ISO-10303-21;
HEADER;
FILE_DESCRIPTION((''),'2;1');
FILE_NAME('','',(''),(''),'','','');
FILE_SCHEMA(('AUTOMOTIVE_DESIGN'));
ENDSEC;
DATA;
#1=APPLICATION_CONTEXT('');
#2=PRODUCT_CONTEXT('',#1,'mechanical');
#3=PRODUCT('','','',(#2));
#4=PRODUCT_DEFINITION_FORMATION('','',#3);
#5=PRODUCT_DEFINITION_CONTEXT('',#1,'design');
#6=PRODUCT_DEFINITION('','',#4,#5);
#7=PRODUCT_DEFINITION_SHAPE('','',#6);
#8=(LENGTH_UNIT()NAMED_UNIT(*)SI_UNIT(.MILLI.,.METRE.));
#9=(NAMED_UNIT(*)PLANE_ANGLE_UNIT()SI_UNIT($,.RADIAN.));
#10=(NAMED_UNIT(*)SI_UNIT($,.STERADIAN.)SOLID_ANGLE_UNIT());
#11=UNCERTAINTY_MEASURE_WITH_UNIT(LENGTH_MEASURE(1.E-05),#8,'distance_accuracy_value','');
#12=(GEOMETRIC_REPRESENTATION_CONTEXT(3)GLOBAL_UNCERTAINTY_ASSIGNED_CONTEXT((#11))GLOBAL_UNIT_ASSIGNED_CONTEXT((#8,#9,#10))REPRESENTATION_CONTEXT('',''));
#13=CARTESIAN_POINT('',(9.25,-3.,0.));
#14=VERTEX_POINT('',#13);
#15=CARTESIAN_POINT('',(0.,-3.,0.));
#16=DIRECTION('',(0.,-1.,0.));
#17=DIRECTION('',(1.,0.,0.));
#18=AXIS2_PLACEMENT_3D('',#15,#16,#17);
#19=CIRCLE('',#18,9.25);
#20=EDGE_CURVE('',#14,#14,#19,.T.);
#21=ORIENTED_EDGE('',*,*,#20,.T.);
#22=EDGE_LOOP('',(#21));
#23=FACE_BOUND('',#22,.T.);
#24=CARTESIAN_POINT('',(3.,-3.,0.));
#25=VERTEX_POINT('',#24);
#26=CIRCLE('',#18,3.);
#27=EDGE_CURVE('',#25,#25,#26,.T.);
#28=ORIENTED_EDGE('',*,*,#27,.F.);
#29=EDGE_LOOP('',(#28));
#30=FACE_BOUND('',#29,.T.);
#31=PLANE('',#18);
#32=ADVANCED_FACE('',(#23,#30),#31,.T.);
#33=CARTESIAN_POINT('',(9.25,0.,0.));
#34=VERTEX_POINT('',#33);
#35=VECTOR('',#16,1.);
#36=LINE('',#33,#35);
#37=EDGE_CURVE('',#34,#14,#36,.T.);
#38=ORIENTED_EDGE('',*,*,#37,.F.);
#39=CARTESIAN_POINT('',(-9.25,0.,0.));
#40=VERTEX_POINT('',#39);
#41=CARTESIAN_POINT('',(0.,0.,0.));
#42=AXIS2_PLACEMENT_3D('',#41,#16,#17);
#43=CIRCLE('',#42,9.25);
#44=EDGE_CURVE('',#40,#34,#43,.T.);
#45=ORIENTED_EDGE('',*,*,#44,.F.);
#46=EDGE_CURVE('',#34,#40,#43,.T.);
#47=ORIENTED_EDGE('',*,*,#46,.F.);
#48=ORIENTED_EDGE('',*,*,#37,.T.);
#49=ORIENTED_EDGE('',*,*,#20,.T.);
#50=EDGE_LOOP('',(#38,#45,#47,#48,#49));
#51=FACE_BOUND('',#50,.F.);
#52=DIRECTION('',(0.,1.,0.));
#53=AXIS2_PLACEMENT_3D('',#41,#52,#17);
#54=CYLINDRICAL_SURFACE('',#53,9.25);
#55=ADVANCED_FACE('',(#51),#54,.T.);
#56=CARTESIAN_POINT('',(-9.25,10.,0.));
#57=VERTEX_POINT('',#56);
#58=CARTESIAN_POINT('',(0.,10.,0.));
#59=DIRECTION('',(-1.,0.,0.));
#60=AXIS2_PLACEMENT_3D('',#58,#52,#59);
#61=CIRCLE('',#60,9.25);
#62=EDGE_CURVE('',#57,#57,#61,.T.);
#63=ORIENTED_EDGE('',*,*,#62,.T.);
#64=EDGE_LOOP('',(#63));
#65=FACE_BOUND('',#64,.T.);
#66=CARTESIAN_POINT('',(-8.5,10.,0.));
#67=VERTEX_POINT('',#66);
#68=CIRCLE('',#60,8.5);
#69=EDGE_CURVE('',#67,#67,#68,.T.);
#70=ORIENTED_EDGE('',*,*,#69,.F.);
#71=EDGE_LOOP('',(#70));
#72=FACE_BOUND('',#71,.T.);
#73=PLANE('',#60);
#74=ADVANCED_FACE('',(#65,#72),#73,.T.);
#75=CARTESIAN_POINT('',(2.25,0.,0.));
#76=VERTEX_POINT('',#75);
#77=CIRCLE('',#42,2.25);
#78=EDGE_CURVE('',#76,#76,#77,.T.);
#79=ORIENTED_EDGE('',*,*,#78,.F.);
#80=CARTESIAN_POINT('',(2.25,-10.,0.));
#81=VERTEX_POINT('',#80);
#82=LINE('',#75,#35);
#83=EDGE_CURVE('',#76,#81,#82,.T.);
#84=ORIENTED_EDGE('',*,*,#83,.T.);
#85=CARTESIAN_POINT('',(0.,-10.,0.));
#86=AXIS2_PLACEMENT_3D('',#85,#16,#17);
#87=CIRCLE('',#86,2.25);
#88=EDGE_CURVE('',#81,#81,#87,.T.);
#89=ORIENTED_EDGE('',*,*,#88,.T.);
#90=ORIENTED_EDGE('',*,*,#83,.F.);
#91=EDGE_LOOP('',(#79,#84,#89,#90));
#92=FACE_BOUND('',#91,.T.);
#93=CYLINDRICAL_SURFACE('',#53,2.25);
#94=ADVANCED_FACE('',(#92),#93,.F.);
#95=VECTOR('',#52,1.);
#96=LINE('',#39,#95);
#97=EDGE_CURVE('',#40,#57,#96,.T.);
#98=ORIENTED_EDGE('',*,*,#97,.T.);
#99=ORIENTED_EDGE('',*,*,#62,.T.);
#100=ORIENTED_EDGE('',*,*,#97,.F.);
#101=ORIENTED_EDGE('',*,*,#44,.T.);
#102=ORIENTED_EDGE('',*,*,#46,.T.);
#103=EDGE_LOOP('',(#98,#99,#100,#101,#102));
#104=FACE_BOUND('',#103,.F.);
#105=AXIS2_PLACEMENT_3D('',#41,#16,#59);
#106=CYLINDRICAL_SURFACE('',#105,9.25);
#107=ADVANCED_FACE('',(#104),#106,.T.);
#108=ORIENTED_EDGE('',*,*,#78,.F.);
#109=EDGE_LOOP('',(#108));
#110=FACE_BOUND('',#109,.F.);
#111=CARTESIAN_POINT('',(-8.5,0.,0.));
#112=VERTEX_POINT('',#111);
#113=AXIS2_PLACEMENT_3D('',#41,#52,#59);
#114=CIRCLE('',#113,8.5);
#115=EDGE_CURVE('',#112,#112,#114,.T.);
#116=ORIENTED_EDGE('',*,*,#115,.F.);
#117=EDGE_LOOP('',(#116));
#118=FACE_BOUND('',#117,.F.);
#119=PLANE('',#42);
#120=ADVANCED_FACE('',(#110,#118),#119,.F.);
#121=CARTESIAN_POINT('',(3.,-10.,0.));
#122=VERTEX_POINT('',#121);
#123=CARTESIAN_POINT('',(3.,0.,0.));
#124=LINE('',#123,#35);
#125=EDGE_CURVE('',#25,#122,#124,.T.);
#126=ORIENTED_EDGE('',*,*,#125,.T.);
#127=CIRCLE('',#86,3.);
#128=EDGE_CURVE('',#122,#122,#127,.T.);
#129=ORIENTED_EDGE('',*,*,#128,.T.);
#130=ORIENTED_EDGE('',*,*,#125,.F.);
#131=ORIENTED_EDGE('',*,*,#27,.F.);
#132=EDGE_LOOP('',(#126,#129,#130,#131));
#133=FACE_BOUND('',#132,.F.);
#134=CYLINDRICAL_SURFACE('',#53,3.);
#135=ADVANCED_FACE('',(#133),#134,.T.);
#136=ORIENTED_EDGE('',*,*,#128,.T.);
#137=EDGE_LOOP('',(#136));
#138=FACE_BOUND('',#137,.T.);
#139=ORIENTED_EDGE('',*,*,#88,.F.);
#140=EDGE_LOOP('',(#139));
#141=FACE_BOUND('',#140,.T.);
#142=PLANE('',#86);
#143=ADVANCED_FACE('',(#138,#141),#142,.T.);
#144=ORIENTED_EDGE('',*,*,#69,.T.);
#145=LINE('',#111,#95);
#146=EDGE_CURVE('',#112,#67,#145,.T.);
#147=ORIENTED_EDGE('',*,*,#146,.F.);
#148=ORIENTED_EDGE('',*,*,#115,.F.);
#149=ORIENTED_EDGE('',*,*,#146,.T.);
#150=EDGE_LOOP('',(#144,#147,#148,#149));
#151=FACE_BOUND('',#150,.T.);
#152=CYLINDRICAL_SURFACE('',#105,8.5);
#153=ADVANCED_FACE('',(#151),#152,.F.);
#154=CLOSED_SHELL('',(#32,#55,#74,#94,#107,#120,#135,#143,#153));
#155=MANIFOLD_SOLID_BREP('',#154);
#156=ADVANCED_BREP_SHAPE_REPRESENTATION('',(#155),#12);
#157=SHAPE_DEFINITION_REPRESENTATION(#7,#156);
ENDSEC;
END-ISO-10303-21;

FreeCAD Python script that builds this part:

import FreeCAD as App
import Part
import Sketcher
from FreeCAD import Vector

doc = App.newDocument("Part")
params = doc.addObject("Spreadsheet::Sheet", "Params")
for row, (alias, value) in enumerate([
    ("sketch1_diameter", "6 mm"),
    ("sketch1_diameter2", "4.5 mm"),
    ("pad1_length", "10 mm"),
    ("sketch2_diameter", "6 mm"),
    ("sketch2_diameter2", "18.5 mm"),
    ("pad2_length", "3 mm"),
    ("sketch3_diameter", "17 mm"),
    ("sketch3_diameter2", "18.5 mm"),
    ("pad3_length", "10 mm"),
], start=1):
    params.set(f"A{row}", alias)
    params.set(f"B{row}", "=" + value)
    params.setAlias(f"B{row}", alias)

body = doc.addObject("PartDesign::Body", "Body")

# Sketch on XZ plane
sketch1 = body.newObject("Sketcher::SketchObject", "Sketch")
sketch1.AttachmentSupport = (doc.getObject("XZ_Plane"), [""])
sketch1.MapMode = "FlatFace"
sketch1.addGeometry([
    Part.Circle(Vector(0, 0, 0), Vector(0, 0, 1), 3),
    Part.Circle(Vector(0, 0, 0), Vector(0, 0, 1), 2.25),
], False)
sketch1.addConstraint([
    Sketcher.Constraint("Coincident", 0, 3, -1, 1),
    Sketcher.Constraint("Coincident", 1, 3, -1, 1),
    Sketcher.Constraint("Diameter", 0, 6.0),
    Sketcher.Constraint("Diameter", 1, 4.5),
])
sketch1.setExpression("Constraints[2]", "Params.sketch1_diameter")
sketch1.setExpression("Constraints[3]", "Params.sketch1_diameter2")
pad1 = body.newObject("PartDesign::Pad", "Pad")
pad1.Profile = sketch1
pad1.setExpression("Length", "Params.pad1_length")

# Sketch on XZ plane
sketch2 = body.newObject("Sketcher::SketchObject", "Sketch001")
sketch2.AttachmentSupport = (doc.getObject("XZ_Plane"), [""])
sketch2.MapMode = "FlatFace"
sketch2.addGeometry([
    Part.Circle(Vector(0, 0, 0), Vector(0, 0, 1), 9.25),
    Part.Circle(Vector(0, 0, 0), Vector(0, 0, 1), 3),
], False)
sketch2.addConstraint([
    Sketcher.Constraint("Coincident", 0, 3, -1, 1),
    Sketcher.Constraint("Coincident", 1, 3, -1, 1),
    Sketcher.Constraint("Diameter", 1, 6.0),
    Sketcher.Constraint("Diameter", 0, 18.5),
])
sketch2.setExpression("Constraints[2]", "Params.sketch2_diameter")
sketch2.setExpression("Constraints[3]", "Params.sketch2_diameter2")
pad2 = body.newObject("PartDesign::Pad", "Pad001")
pad2.Profile = sketch2
pad2.setExpression("Length", "Params.pad2_length")

# Sketch on XZ plane
sketch3 = body.newObject("Sketcher::SketchObject", "Sketch002")
sketch3.AttachmentSupport = (doc.getObject("XZ_Plane"), [""])
sketch3.MapMode = "FlatFace"
sketch3.addGeometry([
    Part.Circle(Vector(0, 0, 0), Vector(0, 0, 1), 9.25),
    Part.Circle(Vector(0, 0, 0), Vector(0, 0, 1), 8.5),
], False)
sketch3.addConstraint([
    Sketcher.Constraint("Coincident", 0, 3, -1, 1),
    Sketcher.Constraint("Coincident", 1, 3, -1, 1),
    Sketcher.Constraint("Diameter", 1, 17.0),
    Sketcher.Constraint("Diameter", 0, 18.5),
])
sketch3.setExpression("Constraints[2]", "Params.sketch3_diameter")
sketch3.setExpression("Constraints[3]", "Params.sketch3_diameter2")
pad3 = body.newObject("PartDesign::Pad", "Pad002")
pad3.Profile = sketch3
pad3.setExpression("Length", "Params.pad3_length")
pad3.Reversed = True

doc.recompute()
